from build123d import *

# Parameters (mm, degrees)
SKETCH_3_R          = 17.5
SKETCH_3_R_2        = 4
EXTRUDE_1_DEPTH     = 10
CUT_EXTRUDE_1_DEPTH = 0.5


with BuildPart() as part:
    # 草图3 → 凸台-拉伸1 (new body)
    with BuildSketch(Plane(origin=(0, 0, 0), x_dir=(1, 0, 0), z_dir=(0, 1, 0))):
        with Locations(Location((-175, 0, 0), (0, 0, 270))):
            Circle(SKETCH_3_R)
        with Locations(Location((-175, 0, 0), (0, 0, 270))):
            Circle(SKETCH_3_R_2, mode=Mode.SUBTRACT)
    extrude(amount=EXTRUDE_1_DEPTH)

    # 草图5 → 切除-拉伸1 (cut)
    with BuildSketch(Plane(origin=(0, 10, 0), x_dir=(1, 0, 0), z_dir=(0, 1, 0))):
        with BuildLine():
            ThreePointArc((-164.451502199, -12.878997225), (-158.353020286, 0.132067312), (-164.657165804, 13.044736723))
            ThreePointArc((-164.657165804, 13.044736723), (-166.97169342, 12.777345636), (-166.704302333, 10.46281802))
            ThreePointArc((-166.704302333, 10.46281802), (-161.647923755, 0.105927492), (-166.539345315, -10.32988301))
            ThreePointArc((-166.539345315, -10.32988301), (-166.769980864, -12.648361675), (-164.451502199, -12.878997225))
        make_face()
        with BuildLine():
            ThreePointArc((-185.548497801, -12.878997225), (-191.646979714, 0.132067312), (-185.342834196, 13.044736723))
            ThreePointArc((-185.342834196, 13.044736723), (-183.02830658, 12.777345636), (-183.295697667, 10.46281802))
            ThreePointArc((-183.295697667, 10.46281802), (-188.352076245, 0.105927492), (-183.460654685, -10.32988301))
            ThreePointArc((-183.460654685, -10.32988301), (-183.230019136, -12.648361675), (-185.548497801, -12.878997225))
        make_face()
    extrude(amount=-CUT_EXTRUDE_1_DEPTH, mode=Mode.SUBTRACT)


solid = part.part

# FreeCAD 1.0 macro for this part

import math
import FreeCAD as App
import Part
import Sketcher

V = App.Vector
Q = App.Units.Quantity

doc = App.newDocument("Part")
body = doc.addObject("PartDesign::Body", "Body")

# Sketch on XZ plane
sketch1 = body.newObject("Sketcher::SketchObject", "Sketch")
sketch1.AttachmentSupport = (doc.getObject("XZ_Plane"), [""])
sketch1.MapMode = "FlatFace"
sketch1.addGeometry([
    Part.Circle(V(-175, 0, 0), V(0, 0, 1), 17.5),
    Part.Circle(V(-175, 0, 0), V(0, 0, 1), 4),
], False)
sketch1.addConstraint([
    Sketcher.Constraint("Coincident", 1, 3, 0, 3),
    Sketcher.Constraint("PointOnObject", 0, 3, -1),
    Sketcher.Constraint("Diameter", 0, Q("35 mm")),
    Sketcher.Constraint("Diameter", 1, Q("8 mm")),
    Sketcher.Constraint("DistanceX", 0, 3, -1, 1, Q("175 mm")),
])
pad1 = body.newObject("PartDesign::Pad", "Pad")
pad1.Profile = sketch1
pad1.Length = 10
pad1.Reversed = True

# Sketch on XZ plane
sketch2 = body.newObject("Sketcher::SketchObject", "Sketch001")
sketch2.AttachmentSupport = (doc.getObject("XZ_Plane"), [""])
sketch2.MapMode = "FlatFace"
sketch2.AttachmentOffset = App.Placement(V(0, 0, -10), App.Rotation())
sketch2.addGeometry([
    Part.ArcOfCircle(Part.Circle(V(-175, 0, 0), V(0, 0, 1), 16.647504), math.radians(-51.590011), math.radians(50.680929)),  # 0
    Part.ArcOfCircle(Part.Circle(V(-165.680734, -11.753777, 0), V(0, 0, 1), 1.647504), math.radians(128.409989), math.radians(308.409989)),  # 1
    Part.ArcOfCircle(Part.Circle(V(-175, 0, 0), V(0, 0, 1), 13.352496), math.radians(-51.590011), math.radians(50.680929)),  # 2
    Part.ArcOfCircle(Part.Circle(V(-165.495424, 11.60444, 0), V(0, 0, 1), 1.647504), math.radians(50.680929), math.radians(230.680929)),  # 3
    Part.ArcOfCircle(Part.Circle(V(-175, 0, 0), V(0, 0, 1), 16.647504), math.radians(129.319071), math.radians(231.590011)),  # 4
    Part.ArcOfCircle(Part.Circle(V(-184.504576, 11.60444, 0), V(0, 0, 1), 1.647504), math.radians(-50.680929), math.radians(129.319071)),  # 5
    Part.ArcOfCircle(Part.Circle(V(-175, 0, 0), V(0, 0, 1), 13.352496), math.radians(129.319071), math.radians(231.590011)),  # 6
    Part.ArcOfCircle(Part.Circle(V(-184.319266, -11.753777, 0), V(0, 0, 1), 1.647504), math.radians(-128.409989), math.radians(51.590011)),  # 7
], False)
sketch2.addConstraint([
    Sketcher.Constraint("Tangent", 0, 1, 1, 2),
    Sketcher.Constraint("Tangent", 1, 1, 2, 1),
    Sketcher.Constraint("Tangent", 2, 2, 3, 2),
    Sketcher.Constraint("Tangent", 3, 1, 0, 2),
    Sketcher.Constraint("Tangent", 4, 1, 5, 2),
    Sketcher.Constraint("Tangent", 5, 1, 6, 1),
    Sketcher.Constraint("Tangent", 6, 2, 7, 2),
    Sketcher.Constraint("Tangent", 7, 1, 4, 2),
    Sketcher.Constraint("Coincident", 2, 3, 0, 3),
    Sketcher.Constraint("Coincident", 4, 3, 0, 3),
    Sketcher.Constraint("Coincident", 6, 3, 0, 3),
    Sketcher.Constraint("Equal", 0, 4),
    Sketcher.Constraint("Equal", 3, 5),
    Sketcher.Constraint("PointOnObject", 0, 3, -1),
    Sketcher.Constraint("Horizontal", 3, 3, 5, 3),
    Sketcher.Constraint("Horizontal", 1, 3, 7, 3),
    Sketcher.Constraint("DistanceX", 0, 3, -1, 1, Q("175 mm")),
    Sketcher.Constraint("Radius", 0, Q("16.647504 mm")),
    Sketcher.Constraint("Radius", 1, Q("1.647504 mm")),
    Sketcher.Constraint("DistanceY", -1, 1, 3, 3, Q("11.60444 mm")),
    Sketcher.Constraint("DistanceY", 1, 1, -1, 1, Q("10.462818 mm")),
])
pocket1 = body.newObject("PartDesign::Pocket", "Pocket")
pocket1.Profile = sketch2
pocket1.Length = 0.5
pocket1.Reversed = True

doc.recompute()
